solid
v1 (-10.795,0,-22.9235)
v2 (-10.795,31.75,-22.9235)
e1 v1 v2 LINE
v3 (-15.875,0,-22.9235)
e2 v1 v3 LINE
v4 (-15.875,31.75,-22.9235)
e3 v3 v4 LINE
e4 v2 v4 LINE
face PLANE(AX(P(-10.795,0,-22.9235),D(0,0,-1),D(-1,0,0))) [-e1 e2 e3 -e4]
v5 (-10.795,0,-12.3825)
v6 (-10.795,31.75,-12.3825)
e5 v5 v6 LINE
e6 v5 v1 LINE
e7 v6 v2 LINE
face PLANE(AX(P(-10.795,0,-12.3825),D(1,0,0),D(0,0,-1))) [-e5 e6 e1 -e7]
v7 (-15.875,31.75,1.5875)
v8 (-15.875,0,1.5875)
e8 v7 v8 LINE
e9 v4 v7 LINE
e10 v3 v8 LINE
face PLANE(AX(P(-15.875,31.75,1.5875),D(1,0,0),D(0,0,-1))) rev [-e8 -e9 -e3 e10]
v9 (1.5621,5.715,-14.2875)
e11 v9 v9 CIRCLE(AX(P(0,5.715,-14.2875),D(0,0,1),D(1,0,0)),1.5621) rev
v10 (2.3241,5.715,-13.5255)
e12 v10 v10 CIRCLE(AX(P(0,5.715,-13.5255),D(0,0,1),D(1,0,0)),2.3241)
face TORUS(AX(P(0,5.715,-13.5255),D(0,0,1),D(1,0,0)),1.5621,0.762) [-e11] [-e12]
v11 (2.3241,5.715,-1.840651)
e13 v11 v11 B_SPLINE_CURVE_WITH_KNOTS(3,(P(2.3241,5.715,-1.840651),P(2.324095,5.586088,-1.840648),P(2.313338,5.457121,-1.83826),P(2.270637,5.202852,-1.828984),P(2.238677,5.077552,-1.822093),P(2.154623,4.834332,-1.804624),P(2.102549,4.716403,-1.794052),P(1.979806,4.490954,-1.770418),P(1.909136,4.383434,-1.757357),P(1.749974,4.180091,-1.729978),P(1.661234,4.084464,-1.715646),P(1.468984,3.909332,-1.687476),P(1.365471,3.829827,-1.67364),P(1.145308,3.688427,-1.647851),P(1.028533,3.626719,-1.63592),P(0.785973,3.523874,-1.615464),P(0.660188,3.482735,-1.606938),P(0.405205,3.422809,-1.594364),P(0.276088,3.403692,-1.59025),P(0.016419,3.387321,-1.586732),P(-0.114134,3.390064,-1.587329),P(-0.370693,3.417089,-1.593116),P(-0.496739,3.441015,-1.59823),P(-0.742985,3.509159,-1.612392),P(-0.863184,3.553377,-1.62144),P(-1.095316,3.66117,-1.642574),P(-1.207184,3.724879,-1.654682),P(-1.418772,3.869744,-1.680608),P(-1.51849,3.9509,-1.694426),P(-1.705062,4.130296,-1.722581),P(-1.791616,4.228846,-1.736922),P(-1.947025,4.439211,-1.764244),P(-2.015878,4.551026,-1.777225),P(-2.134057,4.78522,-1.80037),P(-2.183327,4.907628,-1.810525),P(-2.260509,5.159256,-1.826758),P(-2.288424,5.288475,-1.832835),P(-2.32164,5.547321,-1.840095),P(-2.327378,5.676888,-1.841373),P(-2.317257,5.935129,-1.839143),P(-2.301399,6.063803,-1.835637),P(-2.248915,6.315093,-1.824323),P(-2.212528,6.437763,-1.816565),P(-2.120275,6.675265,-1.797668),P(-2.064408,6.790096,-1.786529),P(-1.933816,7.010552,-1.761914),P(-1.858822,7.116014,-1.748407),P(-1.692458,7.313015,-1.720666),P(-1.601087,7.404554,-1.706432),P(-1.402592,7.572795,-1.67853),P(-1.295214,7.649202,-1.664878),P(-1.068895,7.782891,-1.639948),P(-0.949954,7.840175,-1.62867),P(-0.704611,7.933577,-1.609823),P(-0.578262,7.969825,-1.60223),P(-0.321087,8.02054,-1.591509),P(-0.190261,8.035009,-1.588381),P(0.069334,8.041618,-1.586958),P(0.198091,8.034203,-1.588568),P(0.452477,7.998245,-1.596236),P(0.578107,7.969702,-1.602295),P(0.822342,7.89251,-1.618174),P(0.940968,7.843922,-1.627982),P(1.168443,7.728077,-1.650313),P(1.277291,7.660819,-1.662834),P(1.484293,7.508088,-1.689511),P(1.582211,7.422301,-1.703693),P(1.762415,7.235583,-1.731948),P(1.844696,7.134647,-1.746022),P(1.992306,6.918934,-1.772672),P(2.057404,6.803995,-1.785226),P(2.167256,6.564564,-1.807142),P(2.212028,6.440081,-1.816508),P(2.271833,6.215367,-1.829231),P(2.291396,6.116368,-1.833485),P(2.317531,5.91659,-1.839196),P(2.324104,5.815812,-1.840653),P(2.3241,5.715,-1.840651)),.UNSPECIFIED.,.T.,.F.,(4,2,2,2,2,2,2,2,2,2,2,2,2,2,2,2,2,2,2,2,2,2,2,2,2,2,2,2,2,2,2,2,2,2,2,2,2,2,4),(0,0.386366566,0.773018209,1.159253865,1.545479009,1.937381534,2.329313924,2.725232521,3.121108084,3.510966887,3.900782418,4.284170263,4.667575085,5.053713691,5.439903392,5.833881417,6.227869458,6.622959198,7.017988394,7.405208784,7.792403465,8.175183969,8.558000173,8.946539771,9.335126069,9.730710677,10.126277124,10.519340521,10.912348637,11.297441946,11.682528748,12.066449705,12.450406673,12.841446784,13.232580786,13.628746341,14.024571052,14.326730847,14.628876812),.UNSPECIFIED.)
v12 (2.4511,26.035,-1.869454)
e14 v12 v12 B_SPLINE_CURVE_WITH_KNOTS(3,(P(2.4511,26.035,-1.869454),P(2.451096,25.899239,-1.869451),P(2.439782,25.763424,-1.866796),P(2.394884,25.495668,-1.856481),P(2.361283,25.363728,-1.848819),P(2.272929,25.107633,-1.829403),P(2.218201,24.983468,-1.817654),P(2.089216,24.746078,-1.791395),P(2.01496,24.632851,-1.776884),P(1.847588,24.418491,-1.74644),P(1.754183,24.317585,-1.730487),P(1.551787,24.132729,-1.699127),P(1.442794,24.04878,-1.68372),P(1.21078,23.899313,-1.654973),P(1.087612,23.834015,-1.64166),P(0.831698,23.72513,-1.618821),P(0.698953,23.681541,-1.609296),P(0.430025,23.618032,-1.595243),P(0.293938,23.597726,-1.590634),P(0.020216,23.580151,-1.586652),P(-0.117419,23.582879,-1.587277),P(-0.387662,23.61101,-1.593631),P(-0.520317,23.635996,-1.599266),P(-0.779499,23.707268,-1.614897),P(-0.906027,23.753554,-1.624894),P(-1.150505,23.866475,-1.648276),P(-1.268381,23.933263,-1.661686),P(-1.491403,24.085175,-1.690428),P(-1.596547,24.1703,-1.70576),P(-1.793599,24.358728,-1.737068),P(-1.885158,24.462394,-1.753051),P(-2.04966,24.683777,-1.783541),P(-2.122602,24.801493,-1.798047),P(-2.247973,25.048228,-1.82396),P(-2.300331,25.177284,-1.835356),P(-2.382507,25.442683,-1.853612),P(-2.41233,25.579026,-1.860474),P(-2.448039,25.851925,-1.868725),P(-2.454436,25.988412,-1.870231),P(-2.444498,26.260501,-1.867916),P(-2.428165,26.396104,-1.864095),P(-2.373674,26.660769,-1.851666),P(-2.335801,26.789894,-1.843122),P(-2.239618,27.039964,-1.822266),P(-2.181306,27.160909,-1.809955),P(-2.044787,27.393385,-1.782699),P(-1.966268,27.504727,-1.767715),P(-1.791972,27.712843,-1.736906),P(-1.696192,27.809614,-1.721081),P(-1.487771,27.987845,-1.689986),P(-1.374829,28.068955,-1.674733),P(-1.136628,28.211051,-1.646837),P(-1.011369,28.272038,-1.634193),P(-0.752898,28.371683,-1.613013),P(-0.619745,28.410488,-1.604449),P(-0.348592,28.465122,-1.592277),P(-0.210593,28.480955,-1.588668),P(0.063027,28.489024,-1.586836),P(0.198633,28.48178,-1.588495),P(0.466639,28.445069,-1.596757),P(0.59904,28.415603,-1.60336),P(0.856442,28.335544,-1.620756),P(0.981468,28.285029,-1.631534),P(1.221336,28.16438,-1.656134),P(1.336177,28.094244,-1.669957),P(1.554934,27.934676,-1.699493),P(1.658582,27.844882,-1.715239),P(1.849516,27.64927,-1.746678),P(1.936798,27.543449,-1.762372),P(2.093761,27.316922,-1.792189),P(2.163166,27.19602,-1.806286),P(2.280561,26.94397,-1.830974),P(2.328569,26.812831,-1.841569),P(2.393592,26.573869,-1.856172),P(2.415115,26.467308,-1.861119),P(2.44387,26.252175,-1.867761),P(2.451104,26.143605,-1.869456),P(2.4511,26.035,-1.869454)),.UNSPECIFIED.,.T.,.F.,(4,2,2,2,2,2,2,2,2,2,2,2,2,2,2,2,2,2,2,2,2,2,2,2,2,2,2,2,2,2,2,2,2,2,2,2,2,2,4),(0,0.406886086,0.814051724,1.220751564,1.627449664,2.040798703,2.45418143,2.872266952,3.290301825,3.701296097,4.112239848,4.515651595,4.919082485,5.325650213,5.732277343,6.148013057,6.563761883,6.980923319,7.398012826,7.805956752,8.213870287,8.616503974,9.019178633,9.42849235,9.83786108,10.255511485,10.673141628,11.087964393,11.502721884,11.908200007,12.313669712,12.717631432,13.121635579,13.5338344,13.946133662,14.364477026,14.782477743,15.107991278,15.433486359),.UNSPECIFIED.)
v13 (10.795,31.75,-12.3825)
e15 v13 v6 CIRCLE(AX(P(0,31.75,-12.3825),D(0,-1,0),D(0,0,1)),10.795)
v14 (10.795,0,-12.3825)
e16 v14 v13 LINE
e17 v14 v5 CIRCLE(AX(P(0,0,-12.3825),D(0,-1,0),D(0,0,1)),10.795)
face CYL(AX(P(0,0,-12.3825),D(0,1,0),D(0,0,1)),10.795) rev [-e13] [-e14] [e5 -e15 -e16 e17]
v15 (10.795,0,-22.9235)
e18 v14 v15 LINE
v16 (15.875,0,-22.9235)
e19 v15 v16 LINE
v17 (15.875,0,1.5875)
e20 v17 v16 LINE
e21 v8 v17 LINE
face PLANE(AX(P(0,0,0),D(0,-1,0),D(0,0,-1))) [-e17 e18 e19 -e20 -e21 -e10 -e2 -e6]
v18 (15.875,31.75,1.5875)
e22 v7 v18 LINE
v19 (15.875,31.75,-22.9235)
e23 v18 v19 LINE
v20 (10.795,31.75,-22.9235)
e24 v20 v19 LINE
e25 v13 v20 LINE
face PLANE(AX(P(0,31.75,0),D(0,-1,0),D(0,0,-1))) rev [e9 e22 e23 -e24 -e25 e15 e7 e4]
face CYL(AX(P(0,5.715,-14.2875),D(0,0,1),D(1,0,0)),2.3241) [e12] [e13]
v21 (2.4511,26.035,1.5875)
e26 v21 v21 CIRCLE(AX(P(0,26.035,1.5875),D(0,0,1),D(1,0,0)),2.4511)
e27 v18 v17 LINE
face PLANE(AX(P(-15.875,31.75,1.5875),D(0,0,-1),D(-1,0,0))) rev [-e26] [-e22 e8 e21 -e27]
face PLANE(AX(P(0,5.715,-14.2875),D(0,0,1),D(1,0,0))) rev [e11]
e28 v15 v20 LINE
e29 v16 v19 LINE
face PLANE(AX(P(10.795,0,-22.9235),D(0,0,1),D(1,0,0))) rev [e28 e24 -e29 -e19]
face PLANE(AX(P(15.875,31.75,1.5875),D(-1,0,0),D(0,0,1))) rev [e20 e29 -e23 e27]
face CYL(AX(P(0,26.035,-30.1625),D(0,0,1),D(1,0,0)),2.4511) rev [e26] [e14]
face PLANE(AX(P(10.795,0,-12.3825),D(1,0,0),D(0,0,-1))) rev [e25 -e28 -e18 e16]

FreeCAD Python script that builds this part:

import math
import FreeCAD as App
import Part
import Sketcher
Q = App.Units.Quantity


def edges_at(feature, points):
    """Names of the edges that pass closest to the given points."""
    edges = feature.Shape.Edges
    near = lambda p: min(range(len(edges)), key=lambda i: edges[i].distToShape(Part.Vertex(*p))[0])
    return sorted({f"Edge{near(p) + 1}" for p in points})

doc = App.newDocument("Part")
body = doc.addObject("PartDesign::Body", "Body")

sketch1 = body.newObject("Sketcher::SketchObject", "Sketch")
sketch1.AttachmentSupport = (doc.getObject("XZ_Plane"), [""])
sketch1.MapMode = "FlatFace"
sketch1.addGeometry(Part.LineSegment(App.Vector(-15.875, -1.5875, 0), App.Vector(-15.875, 1.5875, 0)), False)
sketch1.addGeometry(Part.LineSegment(App.Vector(-15.875, 1.5875, 0), App.Vector(15.875, 1.5875, 0)), False)
sketch1.addGeometry(Part.LineSegment(App.Vector(15.875, 1.5875, 0), App.Vector(15.875, -1.5875, 0)), False)
sketch1.addGeometry(Part.LineSegment(App.Vector(15.875, -1.5875, 0), App.Vector(-15.875, -1.5875, 0)), False)
sketch1.addConstraint(Sketcher.Constraint("Coincident", 0, 2, 1, 1))
sketch1.addConstraint(Sketcher.Constraint("Coincident", 1, 2, 2, 1))
sketch1.addConstraint(Sketcher.Constraint("Coincident", 2, 2, 3, 1))
sketch1.addConstraint(Sketcher.Constraint("Coincident", 3, 2, 0, 1))
sketch1.addConstraint(Sketcher.Constraint("Vertical", 0))
sketch1.addConstraint(Sketcher.Constraint("Horizontal", 1))
sketch1.addConstraint(Sketcher.Constraint("Vertical", 2))
sketch1.addConstraint(Sketcher.Constraint("Horizontal", 3))
sketch1.addConstraint(Sketcher.Constraint("Symmetric", 0, 2, 2, 2, -1, 1))
sketch1.addConstraint(Sketcher.Constraint("DistanceX", 1, 1, 1, 2, Q("1.25 in")))
sketch1.addConstraint(Sketcher.Constraint("DistanceY", 0, 1, 0, 2, Q("0.125 in")))
pad1 = body.newObject("PartDesign::Pad", "Pad")
pad1.Profile = sketch1
pad1.Length = Q("1.25 in")
pad1.Reversed = True

sketch2 = body.newObject("Sketcher::SketchObject", "Sketch001")
sketch2.AttachmentSupport = (doc.getObject("XZ_Plane"), [""])
sketch2.MapMode = "FlatFace"
sketch2.AttachmentOffset = App.Placement(App.Vector(0, 0, -1.25 * 25.4), App.Rotation())
sketch2.addGeometry(Part.LineSegment(App.Vector(-15.875, -12.3825, 0), App.Vector(-15.875, -1.5875, 0)), False)
sketch2.addGeometry(Part.LineSegment(App.Vector(-15.875, -1.5875, 0), App.Vector(0, -1.5875, 0)), False)
sketch2.addGeometry(Part.ArcOfCircle(Part.Circle(App.Vector(0, -12.3825, 0), App.Vector(0, 0, 1), 10.795), math.radians(90), math.radians(180)), False)
sketch2.addGeometry(Part.LineSegment(App.Vector(-10.795, -12.3825, 0), App.Vector(-15.875, -12.3825, 0)), False)
sketch2.addConstraint(Sketcher.Constraint("Coincident", 0, 2, 1, 1))
sketch2.addConstraint(Sketcher.Constraint("Tangent", 1, 2, 2, 1))
sketch2.addConstraint(Sketcher.Constraint("Coincident", 2, 2, 3, 1))
sketch2.addConstraint(Sketcher.Constraint("Coincident", 3, 2, 0, 1))
sketch2.addConstraint(Sketcher.Constraint("Vertical", 0))
sketch2.addConstraint(Sketcher.Constraint("Horizontal", 1))
sketch2.addConstraint(Sketcher.Constraint("Horizontal", 3))
sketch2.addConstraint(Sketcher.Constraint("PointOnObject", 2, 3, -2))
sketch2.addConstraint(Sketcher.Constraint("DistanceX", 3, 2, 3, 1, Q("0.2 in")))
sketch2.addConstraint(Sketcher.Constraint("Radius", 2, Q("0.425 in")))
sketch2.addConstraint(Sketcher.Constraint("DistanceY", 0, 1, 0, 2, Q("0.425 in")))
sketch2.addConstraint(Sketcher.Constraint("DistanceY", 0, 2, -1, 1, Q("0.0625 in")))
pad2 = body.newObject("PartDesign::Pad", "Pad001")
pad2.Profile = sketch2
pad2.Length = Q("1.25 in")
doc.recompute()

mirrored = body.newObject("PartDesign::Mirrored", "Mirrored")
mirrored.Originals = [pad2]
mirrored.MirrorPlane = (doc.getObject("YZ_Plane"), [""])
body.Tip = mirrored

sketch3 = body.newObject("Sketcher::SketchObject", "Sketch002")
sketch3.AttachmentSupport = (doc.getObject("XZ_Plane"), [""])
sketch3.MapMode = "FlatFace"
sketch3.AttachmentOffset = App.Placement(App.Vector(0, 0, -1.25 * 25.4), App.Rotation())
sketch3.addGeometry(Part.LineSegment(App.Vector(-15.875, -22.9235, 0), App.Vector(-15.875, -12.3825, 0)), False)
sketch3.addGeometry(Part.LineSegment(App.Vector(-15.875, -12.3825, 0), App.Vector(-10.795, -12.3825, 0)), False)
sketch3.addGeometry(Part.LineSegment(App.Vector(-10.795, -12.3825, 0), App.Vector(-10.795, -22.9235, 0)), False)
sketch3.addGeometry(Part.LineSegment(App.Vector(-10.795, -22.9235, 0), App.Vector(-15.875, -22.9235, 0)), False)
sketch3.addConstraint(Sketcher.Constraint("Coincident", 0, 2, 1, 1))
sketch3.addConstraint(Sketcher.Constraint("Coincident", 1, 2, 2, 1))
sketch3.addConstraint(Sketcher.Constraint("Coincident", 2, 2, 3, 1))
sketch3.addConstraint(Sketcher.Constraint("Coincident", 3, 2, 0, 1))
sketch3.addConstraint(Sketcher.Constraint("Vertical", 0))
sketch3.addConstraint(Sketcher.Constraint("Horizontal", 1))
sketch3.addConstraint(Sketcher.Constraint("Vertical", 2))
sketch3.addConstraint(Sketcher.Constraint("Horizontal", 3))
sketch3.addConstraint(Sketcher.Constraint("DistanceX", 1, 1, 1, 2, Q("0.2 in")))
sketch3.addConstraint(Sketcher.Constraint("DistanceY", 0, 1, 0, 2, Q("0.415 in")))
sketch3.addConstraint(Sketcher.Constraint("DistanceX", 0, 2, -1, 1, Q("0.625 in")))
sketch3.addConstraint(Sketcher.Constraint("DistanceY", 0, 2, -1, 1, Q("0.4875 in")))
pad3 = body.newObject("PartDesign::Pad", "Pad002")
pad3.Profile = sketch3
pad3.Length = Q("1.25 in")
doc.recompute()

mirrored2 = body.newObject("PartDesign::Mirrored", "Mirrored001")
mirrored2.Originals = [pad3]
mirrored2.MirrorPlane = (doc.getObject("YZ_Plane"), [""])
body.Tip = mirrored2

sketch4 = body.newObject("Sketcher::SketchObject", "Sketch003")
sketch4.AttachmentSupport = (doc.getObject("XY_Plane"), [""])
sketch4.MapMode = "FlatFace"
sketch4.AttachmentOffset = App.Placement(App.Vector(0, 0, 0.0625 * 25.4), App.Rotation())
sketch4.addGeometry(Part.Circle(App.Vector(0, 26.035, 0), App.Vector(0, 0, 1), 2.4511), False)
sketch4.addGeometry(Part.Circle(App.Vector(0, 5.715, 0), App.Vector(0, 0, 1), 2.3241), False)
sketch4.addConstraint(Sketcher.Constraint("PointOnObject", 0, 3, -2))
sketch4.addConstraint(Sketcher.Constraint("PointOnObject", 1, 3, -2))
sketch4.addConstraint(Sketcher.Constraint("Diameter", 0, Q("0.193 in")))
sketch4.addConstraint(Sketcher.Constraint("Diameter", 1, Q("0.183 in")))
sketch4.addConstraint(Sketcher.Constraint("DistanceY", 1, 3, 0, 3, Q("0.8 in")))
sketch4.addConstraint(Sketcher.Constraint("DistanceY", -1, 1, 0, 3, Q("1.025 in")))
pocket1 = body.newObject("PartDesign::Pocket", "Pocket")
pocket1.Profile = sketch4
pocket1.Length = Q("1.25 in")

sketch5 = body.newObject("Sketcher::SketchObject", "Sketch004")
sketch5.AttachmentSupport = (doc.getObject("XY_Plane"), [""])
sketch5.MapMode = "FlatFace"
sketch5.AttachmentOffset = App.Placement(App.Vector(0, 0, 0.0625 * 25.4), App.Rotation())
sketch5.addGeometry(Part.Circle(App.Vector(0, 5.715, 0), App.Vector(0, 0, 1), 2.3241), False)
sketch5.addConstraint(Sketcher.Constraint("PointOnObject", 0, 3, -2))
sketch5.addConstraint(Sketcher.Constraint("Diameter", 0, Q("0.183 in")))
sketch5.addConstraint(Sketcher.Constraint("DistanceY", -1, 1, 0, 3, Q("0.225 in")))
pad4 = body.newObject("PartDesign::Pad", "Pad003")
pad4.Profile = sketch5
pad4.Length = Q("0.625 in")
pad4.Reversed = True
doc.recompute()

fillet = body.newObject("PartDesign::Fillet", "Fillet")
fillet.Base = (pad4, edges_at(pad4, [(-2.324, 5.715, -14.287)]))
fillet.Radius = Q("0.03 in")

doc.recompute()
